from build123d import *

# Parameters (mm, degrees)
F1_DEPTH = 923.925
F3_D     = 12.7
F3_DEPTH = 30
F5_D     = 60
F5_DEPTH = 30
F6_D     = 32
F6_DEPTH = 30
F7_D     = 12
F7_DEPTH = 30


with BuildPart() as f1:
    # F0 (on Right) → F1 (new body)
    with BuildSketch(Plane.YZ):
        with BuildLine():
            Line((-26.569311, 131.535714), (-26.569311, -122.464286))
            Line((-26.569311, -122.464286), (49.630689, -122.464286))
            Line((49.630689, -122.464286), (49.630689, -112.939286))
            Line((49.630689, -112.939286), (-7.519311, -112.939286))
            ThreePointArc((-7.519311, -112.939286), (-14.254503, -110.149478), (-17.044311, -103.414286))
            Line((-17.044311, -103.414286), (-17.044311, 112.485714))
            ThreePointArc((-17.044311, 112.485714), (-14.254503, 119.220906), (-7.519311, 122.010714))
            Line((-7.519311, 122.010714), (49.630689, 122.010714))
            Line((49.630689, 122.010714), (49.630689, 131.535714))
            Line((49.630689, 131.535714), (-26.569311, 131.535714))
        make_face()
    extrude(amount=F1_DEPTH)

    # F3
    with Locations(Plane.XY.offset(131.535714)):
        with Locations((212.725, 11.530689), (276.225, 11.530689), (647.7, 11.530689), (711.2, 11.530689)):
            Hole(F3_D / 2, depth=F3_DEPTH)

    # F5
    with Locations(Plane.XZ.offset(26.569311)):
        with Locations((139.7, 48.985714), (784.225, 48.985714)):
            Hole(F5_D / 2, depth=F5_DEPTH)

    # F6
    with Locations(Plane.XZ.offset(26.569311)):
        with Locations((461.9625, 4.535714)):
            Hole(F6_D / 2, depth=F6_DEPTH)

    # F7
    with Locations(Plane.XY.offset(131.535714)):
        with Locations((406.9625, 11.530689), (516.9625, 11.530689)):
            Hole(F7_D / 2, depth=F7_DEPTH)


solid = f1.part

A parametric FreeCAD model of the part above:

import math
import FreeCAD as App
import Part
import Sketcher

V = App.Vector
Q = App.Units.Quantity

doc = App.newDocument("Part")
params = doc.addObject("Spreadsheet::Sheet", "Params")
for row, (alias, value) in enumerate([
    ("sketch1_width", "3 in"),
    ("sketch1_height", "10 in"),
    ("sketch1_height2", "8.5 in"),
    ("sketch1_radius", "0.375 in"),
    ("sketch1_width2", "2.25 in"),
    ("pad1_length", "36.375 in"),
    ("sketch2_diameter", "0.5 in"),
    ("hole_diameter", "0.5 in"),
    ("hole_depth", "30 mm"),
    ("hole2_diameter", "60 mm"),
    ("hole2_depth", "30 mm"),
    ("hole3_diameter", "32 mm"),
    ("hole3_depth", "30 mm"),
    ("hole4_diameter", "12 mm"),
    ("hole4_depth", "30 mm"),
], start=1):
    params.set(f"A{row}", alias)
    params.set(f"B{row}", "=" + value)
    params.setAlias(f"B{row}", alias)

body = doc.addObject("PartDesign::Body", "Body")

# Sketch on YZ plane
sketch1 = body.newObject("Sketcher::SketchObject", "Sketch")
sketch1.AttachmentSupport = (doc.getObject("YZ_Plane"), [""])
sketch1.MapMode = "FlatFace"
sketch1.addGeometry([
    Part.LineSegment(V(-27, 132, 0), V(-27, -122, 0)),  # 0
    Part.LineSegment(V(-27, -122, 0), V(50, -122, 0)),  # 1
    Part.LineSegment(V(50, -122, 0), V(50, -113, 0)),  # 2
    Part.LineSegment(V(50, -113, 0), V(-8, -113, 0)),  # 3
    Part.ArcOfCircle(Part.Circle(V(-8, -103, 0), V(0, 0, 1), 10), math.radians(-180), math.radians(-90)),  # 4
    Part.LineSegment(V(-17, -103, 0), V(-17, 112, 0)),  # 5
    Part.ArcOfCircle(Part.Circle(V(-8, 112, 0), V(0, 0, 1), 10), math.radians(90), math.radians(180)),  # 6
    Part.LineSegment(V(-8, 122, 0), V(50, 122, 0)),  # 7
    Part.LineSegment(V(50, 122, 0), V(50, 132, 0)),  # 8
    Part.LineSegment(V(50, 132, 0), V(-27, 132, 0)),  # 9
], False)
sketch1.addConstraint([
    Sketcher.Constraint("Coincident", 0, 2, 1, 1),
    Sketcher.Constraint("Coincident", 1, 2, 2, 1),
    Sketcher.Constraint("Coincident", 2, 2, 3, 1),
    Sketcher.Constraint("Tangent", 3, 2, 4, 2),
    Sketcher.Constraint("Tangent", 4, 1, 5, 1),
    Sketcher.Constraint("Tangent", 5, 2, 6, 2),
    Sketcher.Constraint("Tangent", 6, 1, 7, 1),
    Sketcher.Constraint("Coincident", 7, 2, 8, 1),
    Sketcher.Constraint("Coincident", 8, 2, 9, 1),
    Sketcher.Constraint("Coincident", 9, 2, 0, 1),
    Sketcher.Constraint("Vertical", 0),
    Sketcher.Constraint("Horizontal", 1),
    Sketcher.Constraint("Vertical", 2),
    Sketcher.Constraint("Horizontal", 3),
    Sketcher.Constraint("Vertical", 5),
    Sketcher.Constraint("Horizontal", 7),
    Sketcher.Constraint("Vertical", 8),
    Sketcher.Constraint("Horizontal", 9),
    Sketcher.Constraint("Equal", 4, 6),
    Sketcher.Constraint("Vertical", 2, 2, 7, 2),
    Sketcher.Constraint("Equal", 2, 8),
    Sketcher.Constraint("DistanceX", 1, 1, 1, 2, Q("3 in")),
    Sketcher.Constraint("DistanceY", 0, 2, 0, 1, Q("10 in")),
    Sketcher.Constraint("DistanceY", 5, 1, 5, 2, Q("8.5 in")),
    Sketcher.Constraint("Radius", 4, Q("0.375 in")),
    Sketcher.Constraint("DistanceX", 3, 2, 3, 1, Q("2.25 in")),
    Sketcher.Constraint("DistanceX", 4, 3, -1, 1, 7.519311),
    Sketcher.Constraint("DistanceY", 4, 3, -1, 1, 103.414286),
])
sketch1.setExpression("Constraints[21]", "Params.sketch1_width")
sketch1.setExpression("Constraints[22]", "Params.sketch1_height")
sketch1.setExpression("Constraints[23]", "Params.sketch1_height2")
sketch1.setExpression("Constraints[24]", "Params.sketch1_radius")
sketch1.setExpression("Constraints[25]", "Params.sketch1_width2")
pad1 = body.newObject("PartDesign::Pad", "Pad")
pad1.Profile = sketch1
pad1.setExpression("Length", "Params.pad1_length")

# Sketch on XY plane
sketch2 = body.newObject("Sketcher::SketchObject", "Sketch001")
sketch2.AttachmentSupport = (doc.getObject("XY_Plane"), [""])
sketch2.MapMode = "FlatFace"
sketch2.AttachmentOffset = App.Placement(V(0, 0, 131.535714), App.Rotation())
sketch2.addGeometry([
    Part.Circle(V(213, 12, 0), V(0, 0, 1), 6),
    Part.Circle(V(276, 12, 0), V(0, 0, 1), 6),
    Part.Circle(V(648, 12, 0), V(0, 0, 1), 6),
    Part.Circle(V(711, 12, 0), V(0, 0, 1), 6),
], False)
sketch2.addConstraint([
    Sketcher.Constraint("Equal", 0, 1),
    Sketcher.Constraint("Equal", 1, 2),
    Sketcher.Constraint("Equal", 2, 3),
    Sketcher.Constraint("Horizontal", 0, 3, 1, 3),
    Sketcher.Constraint("Horizontal", 1, 3, 2, 3),
    Sketcher.Constraint("Horizontal", 2, 3, 3, 3),
    Sketcher.Constraint("Diameter", 0, Q("0.5 in")),
    Sketcher.Constraint("DistanceX", -1, 1, 3, 3, Q("28 in")),
    Sketcher.Constraint("DistanceX", -1, 1, 2, 3, Q("25.5 in")),
    Sketcher.Constraint("DistanceX", 0, 3, 1, 3, Q("2.5 in")),
    Sketcher.Constraint("DistanceX", -1, 1, 0, 3, Q("8.375 in")),
    Sketcher.Constraint("DistanceY", -1, 1, 0, 3, 11.530689),
])
sketch2.setExpression("Constraints[6]", "Params.sketch2_diameter")
doc.recompute()
hole = body.newObject("PartDesign::Hole", "Hole")
hole.Profile = sketch2
hole.ThreadType = "None"
hole.setExpression("Diameter", "Params.hole_diameter")
hole.DepthType = "Dimension"
hole.setExpression("Depth", "Params.hole_depth")
hole.DrillPoint = "Flat"

# Sketch on XZ plane
sketch3 = body.newObject("Sketcher::SketchObject", "Sketch002")
sketch3.AttachmentSupport = (doc.getObject("XZ_Plane"), [""])
sketch3.MapMode = "FlatFace"
sketch3.AttachmentOffset = App.Placement(V(0, 0, 26.569311), App.Rotation())
sketch3.addGeometry([
    Part.Circle(V(140, 49, 0), V(0, 0, 1), 30),
    Part.Circle(V(784, 49, 0), V(0, 0, 1), 30),
], False)
sketch3.addConstraint([
    Sketcher.Constraint("Equal", 0, 1),
    Sketcher.Constraint("Horizontal", 0, 3, 1, 3),
    Sketcher.Constraint("DistanceX", -1, 1, 0, 3, Q("5.5 in")),
    Sketcher.Constraint("Diameter", 0, 60.0),
    Sketcher.Constraint("DistanceX", -1, 1, 1, 3, Q("30.875 in")),
    Sketcher.Constraint("DistanceY", -1, 1, 0, 3, 48.985714),
])
doc.recompute()
hole2 = body.newObject("PartDesign::Hole", "Hole001")
hole2.Profile = sketch3
hole2.ThreadType = "None"
hole2.setExpression("Diameter", "Params.hole2_diameter")
hole2.DepthType = "Dimension"
hole2.setExpression("Depth", "Params.hole2_depth")
hole2.DrillPoint = "Flat"

# Sketch on XZ plane
sketch4 = body.newObject("Sketcher::SketchObject", "Sketch003")
sketch4.AttachmentSupport = (doc.getObject("XZ_Plane"), [""])
sketch4.MapMode = "FlatFace"
sketch4.AttachmentOffset = App.Placement(V(0, 0, 26.569311), App.Rotation())
sketch4.addGeometry(Part.Circle(V(462, 5, 0), V(0, 0, 1), 16), False)
sketch4.addConstraint([
    Sketcher.Constraint("Diameter", 0, 32.0),
    Sketcher.Constraint("DistanceX", -1, 1, 0, 3, Q("18.1875 in")),
    Sketcher.Constraint("DistanceY", -1, 1, 0, 3, 4.535714),
])
doc.recompute()
hole3 = body.newObject("PartDesign::Hole", "Hole002")
hole3.Profile = sketch4
hole3.ThreadType = "None"
hole3.setExpression("Diameter", "Params.hole3_diameter")
hole3.DepthType = "Dimension"
hole3.setExpression("Depth", "Params.hole3_depth")
hole3.DrillPoint = "Flat"

# Sketch on XY plane
sketch5 = body.newObject("Sketcher::SketchObject", "Sketch004")
sketch5.AttachmentSupport = (doc.getObject("XY_Plane"), [""])
sketch5.MapMode = "FlatFace"
sketch5.AttachmentOffset = App.Placement(V(0, 0, 131.535714), App.Rotation())
sketch5.addGeometry([
    Part.Circle(V(407, 12, 0), V(0, 0, 1), 6),
    Part.Circle(V(517, 12, 0), V(0, 0, 1), 6),
], False)
sketch5.addConstraint([
    Sketcher.Constraint("Equal", 0, 1),
    Sketcher.Constraint("Horizontal", 0, 3, 1, 3),
    Sketcher.Constraint("Diameter", 0, 12.0),
    Sketcher.Constraint("DistanceX", -1, 1, 0, 3, 406.9625),
    Sketcher.Constraint("DistanceX", -1, 1, 1, 3, 516.9625),
    Sketcher.Constraint("DistanceY", -1, 1, 0, 3, 11.530689),
])
doc.recompute()
hole4 = body.newObject("PartDesign::Hole", "Hole003")
hole4.Profile = sketch5
hole4.ThreadType = "None"
hole4.setExpression("Diameter", "Params.hole4_diameter")
hole4.DepthType = "Dimension"
hole4.setExpression("Depth", "Params.hole4_depth")
hole4.DrillPoint = "Flat"

doc.recompute()
